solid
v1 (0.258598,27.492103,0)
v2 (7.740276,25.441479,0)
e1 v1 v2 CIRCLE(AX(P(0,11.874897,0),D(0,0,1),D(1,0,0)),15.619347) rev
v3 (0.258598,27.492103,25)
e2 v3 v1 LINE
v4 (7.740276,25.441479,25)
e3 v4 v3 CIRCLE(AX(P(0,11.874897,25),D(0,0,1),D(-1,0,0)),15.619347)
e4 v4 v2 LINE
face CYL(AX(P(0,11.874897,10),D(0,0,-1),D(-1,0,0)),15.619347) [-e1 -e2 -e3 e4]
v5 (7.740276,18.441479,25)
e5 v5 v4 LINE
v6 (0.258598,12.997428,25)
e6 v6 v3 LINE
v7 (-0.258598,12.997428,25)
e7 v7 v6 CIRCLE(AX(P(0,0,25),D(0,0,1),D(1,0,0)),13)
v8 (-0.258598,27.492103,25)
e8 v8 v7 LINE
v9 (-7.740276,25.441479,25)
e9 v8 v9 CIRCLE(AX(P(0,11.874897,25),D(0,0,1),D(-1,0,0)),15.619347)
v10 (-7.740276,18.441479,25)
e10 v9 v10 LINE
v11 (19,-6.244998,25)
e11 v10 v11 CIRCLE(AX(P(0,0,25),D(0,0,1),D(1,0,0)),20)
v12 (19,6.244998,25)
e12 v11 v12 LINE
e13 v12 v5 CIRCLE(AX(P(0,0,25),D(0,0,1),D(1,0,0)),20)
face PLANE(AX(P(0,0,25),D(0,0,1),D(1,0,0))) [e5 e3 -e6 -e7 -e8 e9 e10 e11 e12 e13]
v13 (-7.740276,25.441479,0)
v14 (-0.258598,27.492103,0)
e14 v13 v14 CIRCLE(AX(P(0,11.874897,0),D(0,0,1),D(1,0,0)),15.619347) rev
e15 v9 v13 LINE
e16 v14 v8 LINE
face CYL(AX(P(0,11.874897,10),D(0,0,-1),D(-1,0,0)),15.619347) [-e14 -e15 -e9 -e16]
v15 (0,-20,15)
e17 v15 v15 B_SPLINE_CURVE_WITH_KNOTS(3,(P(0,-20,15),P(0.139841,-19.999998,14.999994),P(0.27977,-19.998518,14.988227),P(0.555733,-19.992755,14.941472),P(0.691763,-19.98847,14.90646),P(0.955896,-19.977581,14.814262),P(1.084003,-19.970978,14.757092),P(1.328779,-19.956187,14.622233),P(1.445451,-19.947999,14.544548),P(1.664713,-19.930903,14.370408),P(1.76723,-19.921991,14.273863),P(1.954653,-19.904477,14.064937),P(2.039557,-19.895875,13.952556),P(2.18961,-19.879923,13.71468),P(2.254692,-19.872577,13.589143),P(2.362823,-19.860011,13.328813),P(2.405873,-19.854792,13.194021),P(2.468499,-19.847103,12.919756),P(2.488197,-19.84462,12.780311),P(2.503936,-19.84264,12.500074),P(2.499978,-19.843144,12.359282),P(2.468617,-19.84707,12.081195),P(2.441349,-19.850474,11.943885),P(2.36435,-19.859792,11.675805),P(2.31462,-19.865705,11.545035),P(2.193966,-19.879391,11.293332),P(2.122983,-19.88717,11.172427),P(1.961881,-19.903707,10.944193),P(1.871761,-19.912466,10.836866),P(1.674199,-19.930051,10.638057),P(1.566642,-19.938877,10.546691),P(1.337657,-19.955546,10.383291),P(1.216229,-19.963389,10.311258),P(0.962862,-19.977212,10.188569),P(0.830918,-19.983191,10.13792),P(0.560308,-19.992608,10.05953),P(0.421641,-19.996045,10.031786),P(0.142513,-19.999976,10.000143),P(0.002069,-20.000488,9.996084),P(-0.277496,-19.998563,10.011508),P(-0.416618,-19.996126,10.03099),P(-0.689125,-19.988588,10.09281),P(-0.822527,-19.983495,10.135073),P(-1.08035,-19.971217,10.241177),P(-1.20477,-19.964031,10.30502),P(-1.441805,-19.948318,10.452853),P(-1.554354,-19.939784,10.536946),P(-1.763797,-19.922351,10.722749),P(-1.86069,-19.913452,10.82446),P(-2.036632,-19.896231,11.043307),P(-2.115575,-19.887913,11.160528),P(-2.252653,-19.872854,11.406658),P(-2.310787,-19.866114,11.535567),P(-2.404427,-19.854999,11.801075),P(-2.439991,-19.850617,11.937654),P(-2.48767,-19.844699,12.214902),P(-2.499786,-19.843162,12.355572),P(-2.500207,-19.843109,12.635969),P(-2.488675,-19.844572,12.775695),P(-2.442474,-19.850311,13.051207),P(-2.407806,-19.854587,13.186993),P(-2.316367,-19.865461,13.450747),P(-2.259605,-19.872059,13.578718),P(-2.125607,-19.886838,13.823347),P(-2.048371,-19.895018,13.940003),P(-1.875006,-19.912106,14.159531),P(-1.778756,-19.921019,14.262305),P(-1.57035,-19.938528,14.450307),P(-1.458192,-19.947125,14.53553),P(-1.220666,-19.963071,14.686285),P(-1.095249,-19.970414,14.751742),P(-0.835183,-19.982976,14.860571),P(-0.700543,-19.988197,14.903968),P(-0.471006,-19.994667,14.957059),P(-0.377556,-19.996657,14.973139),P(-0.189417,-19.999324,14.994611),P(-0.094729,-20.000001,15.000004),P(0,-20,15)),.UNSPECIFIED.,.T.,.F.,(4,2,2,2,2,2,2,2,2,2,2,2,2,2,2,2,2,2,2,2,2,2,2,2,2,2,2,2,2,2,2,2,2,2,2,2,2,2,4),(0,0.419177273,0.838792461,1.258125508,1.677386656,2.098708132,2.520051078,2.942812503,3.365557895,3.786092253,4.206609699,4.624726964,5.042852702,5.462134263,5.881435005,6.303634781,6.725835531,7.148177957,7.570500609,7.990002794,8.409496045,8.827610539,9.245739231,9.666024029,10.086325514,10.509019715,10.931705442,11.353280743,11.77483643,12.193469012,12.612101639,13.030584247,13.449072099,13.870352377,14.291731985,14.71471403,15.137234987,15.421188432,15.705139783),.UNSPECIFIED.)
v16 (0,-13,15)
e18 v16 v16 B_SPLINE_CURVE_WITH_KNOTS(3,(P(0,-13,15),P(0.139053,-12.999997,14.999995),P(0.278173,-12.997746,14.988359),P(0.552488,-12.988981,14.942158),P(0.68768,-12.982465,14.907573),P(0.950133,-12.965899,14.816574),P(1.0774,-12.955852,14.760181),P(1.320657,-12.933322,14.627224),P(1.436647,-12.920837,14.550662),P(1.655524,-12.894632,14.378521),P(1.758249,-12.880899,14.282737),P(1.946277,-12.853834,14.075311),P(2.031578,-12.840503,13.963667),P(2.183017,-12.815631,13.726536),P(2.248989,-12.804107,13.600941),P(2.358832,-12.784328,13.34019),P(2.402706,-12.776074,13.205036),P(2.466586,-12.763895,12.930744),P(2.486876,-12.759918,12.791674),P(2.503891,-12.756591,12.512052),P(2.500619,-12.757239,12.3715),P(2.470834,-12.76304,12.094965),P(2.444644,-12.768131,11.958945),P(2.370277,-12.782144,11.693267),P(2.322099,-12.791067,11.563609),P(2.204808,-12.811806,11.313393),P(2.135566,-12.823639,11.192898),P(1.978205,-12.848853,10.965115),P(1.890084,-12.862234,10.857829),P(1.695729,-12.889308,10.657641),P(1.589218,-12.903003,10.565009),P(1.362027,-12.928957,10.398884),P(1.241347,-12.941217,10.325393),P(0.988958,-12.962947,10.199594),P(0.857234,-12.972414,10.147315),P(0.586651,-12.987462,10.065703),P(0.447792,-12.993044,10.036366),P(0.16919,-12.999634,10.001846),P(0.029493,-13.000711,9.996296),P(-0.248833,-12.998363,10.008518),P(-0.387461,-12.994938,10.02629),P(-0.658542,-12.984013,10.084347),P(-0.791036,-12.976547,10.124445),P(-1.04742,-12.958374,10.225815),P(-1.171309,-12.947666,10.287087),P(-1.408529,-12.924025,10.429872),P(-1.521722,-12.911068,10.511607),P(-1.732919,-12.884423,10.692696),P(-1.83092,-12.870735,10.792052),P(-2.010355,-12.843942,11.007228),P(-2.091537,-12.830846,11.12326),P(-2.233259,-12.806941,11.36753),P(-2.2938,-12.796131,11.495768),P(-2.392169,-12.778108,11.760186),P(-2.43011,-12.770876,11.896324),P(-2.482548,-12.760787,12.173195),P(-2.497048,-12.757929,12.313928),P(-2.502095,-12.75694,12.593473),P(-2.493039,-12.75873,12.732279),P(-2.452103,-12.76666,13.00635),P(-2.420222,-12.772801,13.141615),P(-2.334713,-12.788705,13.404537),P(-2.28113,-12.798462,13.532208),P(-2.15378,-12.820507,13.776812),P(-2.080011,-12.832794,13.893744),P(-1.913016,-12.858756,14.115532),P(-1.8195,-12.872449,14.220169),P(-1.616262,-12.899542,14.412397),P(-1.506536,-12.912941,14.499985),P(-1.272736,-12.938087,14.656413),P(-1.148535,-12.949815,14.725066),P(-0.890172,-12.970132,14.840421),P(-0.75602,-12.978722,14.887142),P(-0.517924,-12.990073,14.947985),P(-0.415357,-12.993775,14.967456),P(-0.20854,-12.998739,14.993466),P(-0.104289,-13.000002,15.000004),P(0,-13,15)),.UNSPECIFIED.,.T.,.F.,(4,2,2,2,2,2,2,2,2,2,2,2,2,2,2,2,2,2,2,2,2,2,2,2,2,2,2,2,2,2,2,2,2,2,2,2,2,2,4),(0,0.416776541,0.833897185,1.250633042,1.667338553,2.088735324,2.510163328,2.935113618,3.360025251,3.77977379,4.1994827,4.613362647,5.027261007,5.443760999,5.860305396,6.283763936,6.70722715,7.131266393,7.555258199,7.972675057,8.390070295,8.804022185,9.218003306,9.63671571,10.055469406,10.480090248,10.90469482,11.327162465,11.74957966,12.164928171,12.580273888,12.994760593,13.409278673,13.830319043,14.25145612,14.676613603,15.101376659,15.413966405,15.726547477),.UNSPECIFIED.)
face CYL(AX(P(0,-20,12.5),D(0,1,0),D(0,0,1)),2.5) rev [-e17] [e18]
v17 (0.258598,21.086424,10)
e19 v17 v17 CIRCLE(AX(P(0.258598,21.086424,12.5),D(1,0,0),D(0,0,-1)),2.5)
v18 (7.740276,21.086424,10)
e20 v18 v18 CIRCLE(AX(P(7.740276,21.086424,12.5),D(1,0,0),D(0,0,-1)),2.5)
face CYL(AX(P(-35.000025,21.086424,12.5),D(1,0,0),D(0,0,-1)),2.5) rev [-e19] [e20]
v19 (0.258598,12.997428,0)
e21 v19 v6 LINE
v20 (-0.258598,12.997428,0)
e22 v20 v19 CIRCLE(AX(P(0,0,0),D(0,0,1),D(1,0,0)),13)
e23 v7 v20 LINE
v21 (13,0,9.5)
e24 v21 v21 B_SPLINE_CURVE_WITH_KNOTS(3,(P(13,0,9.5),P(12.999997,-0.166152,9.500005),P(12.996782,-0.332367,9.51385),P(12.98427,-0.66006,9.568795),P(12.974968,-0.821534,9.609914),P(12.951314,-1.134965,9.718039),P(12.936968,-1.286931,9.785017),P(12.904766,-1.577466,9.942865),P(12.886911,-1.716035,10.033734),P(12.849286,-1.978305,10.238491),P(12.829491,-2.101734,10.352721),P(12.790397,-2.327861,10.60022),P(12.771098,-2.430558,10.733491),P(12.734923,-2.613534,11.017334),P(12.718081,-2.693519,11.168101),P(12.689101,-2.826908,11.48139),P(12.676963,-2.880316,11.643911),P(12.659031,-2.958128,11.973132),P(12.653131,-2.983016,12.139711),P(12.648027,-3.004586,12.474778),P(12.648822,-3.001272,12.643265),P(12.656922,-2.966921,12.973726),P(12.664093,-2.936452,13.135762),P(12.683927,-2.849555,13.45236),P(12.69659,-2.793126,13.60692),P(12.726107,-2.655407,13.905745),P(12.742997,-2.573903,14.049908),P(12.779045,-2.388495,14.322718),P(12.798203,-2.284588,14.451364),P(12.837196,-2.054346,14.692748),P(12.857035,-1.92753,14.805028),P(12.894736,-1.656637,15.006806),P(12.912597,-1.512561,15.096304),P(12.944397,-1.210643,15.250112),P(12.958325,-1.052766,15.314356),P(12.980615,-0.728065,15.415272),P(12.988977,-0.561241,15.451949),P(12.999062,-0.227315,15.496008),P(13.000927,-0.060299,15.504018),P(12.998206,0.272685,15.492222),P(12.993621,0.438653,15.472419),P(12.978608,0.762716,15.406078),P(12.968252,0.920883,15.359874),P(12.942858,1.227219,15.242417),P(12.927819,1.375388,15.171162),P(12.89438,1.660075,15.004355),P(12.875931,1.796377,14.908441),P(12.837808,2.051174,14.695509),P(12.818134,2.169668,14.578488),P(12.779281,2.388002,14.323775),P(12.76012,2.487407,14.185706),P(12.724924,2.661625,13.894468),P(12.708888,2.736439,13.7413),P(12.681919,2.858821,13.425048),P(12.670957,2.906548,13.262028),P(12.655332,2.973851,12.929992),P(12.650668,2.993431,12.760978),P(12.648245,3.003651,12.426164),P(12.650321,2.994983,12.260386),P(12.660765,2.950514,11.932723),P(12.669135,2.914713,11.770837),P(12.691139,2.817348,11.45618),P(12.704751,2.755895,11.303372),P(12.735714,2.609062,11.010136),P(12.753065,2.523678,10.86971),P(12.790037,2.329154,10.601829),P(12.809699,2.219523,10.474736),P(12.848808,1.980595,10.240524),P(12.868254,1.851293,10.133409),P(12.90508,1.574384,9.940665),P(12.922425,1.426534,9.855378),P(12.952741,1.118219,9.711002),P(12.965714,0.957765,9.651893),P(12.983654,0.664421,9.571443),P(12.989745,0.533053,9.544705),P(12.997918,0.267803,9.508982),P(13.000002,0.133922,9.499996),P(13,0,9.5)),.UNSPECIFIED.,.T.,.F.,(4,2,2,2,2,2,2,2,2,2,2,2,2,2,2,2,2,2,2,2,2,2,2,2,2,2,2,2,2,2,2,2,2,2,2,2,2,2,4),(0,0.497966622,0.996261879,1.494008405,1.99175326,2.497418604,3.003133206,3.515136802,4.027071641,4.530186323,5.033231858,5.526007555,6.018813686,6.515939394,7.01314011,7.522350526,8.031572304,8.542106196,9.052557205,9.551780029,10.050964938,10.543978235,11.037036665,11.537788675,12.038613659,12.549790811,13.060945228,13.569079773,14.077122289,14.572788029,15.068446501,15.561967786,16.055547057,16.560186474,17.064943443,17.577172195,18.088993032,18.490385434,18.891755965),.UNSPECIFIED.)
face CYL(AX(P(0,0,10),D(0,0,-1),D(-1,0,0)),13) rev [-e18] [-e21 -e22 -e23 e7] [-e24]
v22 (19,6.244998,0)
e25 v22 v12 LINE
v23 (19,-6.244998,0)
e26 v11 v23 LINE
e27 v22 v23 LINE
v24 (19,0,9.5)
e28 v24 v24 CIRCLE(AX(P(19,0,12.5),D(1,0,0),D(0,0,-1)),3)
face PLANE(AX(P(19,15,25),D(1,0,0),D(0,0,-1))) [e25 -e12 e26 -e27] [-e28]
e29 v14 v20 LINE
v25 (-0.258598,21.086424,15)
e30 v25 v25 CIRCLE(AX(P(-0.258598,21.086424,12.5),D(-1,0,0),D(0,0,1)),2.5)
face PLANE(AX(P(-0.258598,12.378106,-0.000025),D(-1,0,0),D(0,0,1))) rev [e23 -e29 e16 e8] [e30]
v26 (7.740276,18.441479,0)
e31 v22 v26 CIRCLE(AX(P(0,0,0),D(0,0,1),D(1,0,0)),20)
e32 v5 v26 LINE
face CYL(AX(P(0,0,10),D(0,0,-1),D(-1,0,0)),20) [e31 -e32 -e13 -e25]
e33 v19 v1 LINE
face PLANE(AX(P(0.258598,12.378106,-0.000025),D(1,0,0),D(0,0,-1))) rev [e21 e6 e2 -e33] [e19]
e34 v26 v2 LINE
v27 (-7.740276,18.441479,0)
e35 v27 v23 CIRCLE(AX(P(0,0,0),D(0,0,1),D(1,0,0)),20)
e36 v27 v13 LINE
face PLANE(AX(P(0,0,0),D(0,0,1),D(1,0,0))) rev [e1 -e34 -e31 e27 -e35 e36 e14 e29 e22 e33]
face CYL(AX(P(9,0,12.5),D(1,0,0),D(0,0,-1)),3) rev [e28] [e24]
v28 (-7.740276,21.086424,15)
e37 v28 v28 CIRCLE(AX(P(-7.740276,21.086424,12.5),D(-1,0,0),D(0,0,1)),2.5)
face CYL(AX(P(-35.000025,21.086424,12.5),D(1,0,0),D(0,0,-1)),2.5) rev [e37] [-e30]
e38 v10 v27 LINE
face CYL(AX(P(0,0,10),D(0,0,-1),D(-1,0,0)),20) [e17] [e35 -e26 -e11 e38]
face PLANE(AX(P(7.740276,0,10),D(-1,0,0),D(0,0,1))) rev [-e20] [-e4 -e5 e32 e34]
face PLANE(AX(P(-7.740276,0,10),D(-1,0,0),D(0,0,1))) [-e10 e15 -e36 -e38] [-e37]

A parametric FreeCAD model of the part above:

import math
import FreeCAD as App
import Part
import Sketcher

V = App.Vector
Q = App.Units.Quantity


def add_polygon(sketch, points):
    """Adds a closed chain of lines whose ends are joined by coincident constraints."""
    first, n = sketch.GeometryCount, len(points)
    for a, b in zip(points, points[1:] + points[:1]):
        sketch.addGeometry(Part.LineSegment(App.Vector(*a, 0), App.Vector(*b, 0)), False)
    for i in range(n):
        sketch.addConstraint(Sketcher.Constraint("Coincident", first + i, 2, first + (i + 1) % n, 1))

doc = App.newDocument("Part")
body = doc.addObject("PartDesign::Body", "Body")

# Sketch on XY plane
sketch1 = doc.addObject("Sketcher::SketchObject", "Sketch")
body.addObject(sketch1)
sketch1.AttachmentSupport = (doc.XY_Plane, [""])
sketch1.MapMode = "FlatFace"
sketch1.addGeometry(Part.LineSegment(V(-35, -7, 0), V(-7.7, -18.4, 0)), False)
sketch1.addGeometry(Part.ArcOfCircle(Part.Circle(V(0, 0, 0), V(0, 0, 1), 20), math.radians(-113), math.radians(-67)), False)
sketch1.addGeometry(Part.LineSegment(V(7.7, -18.4, 0), V(35, -7, 0)), False)
sketch1.addGeometry(Part.LineSegment(V(35, -7, 0), V(35, 7, 0)), False)
sketch1.addGeometry(Part.LineSegment(V(35, 7, 0), V(7.7, 18.4, 0)), False)
sketch1.addGeometry(Part.LineSegment(V(7.7, 18.4, 0), V(7.7, 25.4, 0)), False)
sketch1.addGeometry(Part.ArcOfCircle(Part.Circle(V(0, 11.9, 0), V(0, 0, 1), 15.6), math.radians(60), math.radians(120)), False)
sketch1.addGeometry(Part.LineSegment(V(-7.7, 25.4, 0), V(-7.7, 18.4, 0)), False)
sketch1.addGeometry(Part.LineSegment(V(-7.7, 18.4, 0), V(-35, 7, 0)), False)
sketch1.addGeometry(Part.LineSegment(V(-35, 7, 0), V(-35, -7, 0)), False)
sketch1.addGeometry(Part.Circle(V(-28, 0, 0), V(0, 0, 1), 3.5), False)
sketch1.addGeometry(Part.Circle(V(0, 0, 0), V(0, 0, 1), 13), False)
sketch1.addGeometry(Part.Circle(V(28, 0, 0), V(0, 0, 1), 3.5), False)
sketch1.addConstraint(Sketcher.Constraint("Tangent", 0, 2, 1, 1))
sketch1.addConstraint(Sketcher.Constraint("Tangent", 1, 2, 2, 1))
sketch1.addConstraint(Sketcher.Constraint("Coincident", 2, 2, 3, 1))
sketch1.addConstraint(Sketcher.Constraint("Coincident", 3, 2, 4, 1))
sketch1.addConstraint(Sketcher.Constraint("Coincident", 4, 2, 5, 1))
sketch1.addConstraint(Sketcher.Constraint("Coincident", 5, 2, 6, 1))
sketch1.addConstraint(Sketcher.Constraint("Coincident", 6, 2, 7, 1))
sketch1.addConstraint(Sketcher.Constraint("Coincident", 7, 2, 8, 1))
sketch1.addConstraint(Sketcher.Constraint("Coincident", 8, 2, 9, 1))
sketch1.addConstraint(Sketcher.Constraint("Coincident", 9, 2, 0, 1))
sketch1.addConstraint(Sketcher.Constraint("Vertical", 3))
sketch1.addConstraint(Sketcher.Constraint("Vertical", 5))
sketch1.addConstraint(Sketcher.Constraint("Vertical", 7))
sketch1.addConstraint(Sketcher.Constraint("Vertical", 9))
sketch1.addConstraint(Sketcher.Constraint("Coincident", 1, 3, -1, 1))
sketch1.addConstraint(Sketcher.Constraint("Coincident", 11, 3, -1, 1))
sketch1.addConstraint(Sketcher.Constraint("Equal", 10, 12))
sketch1.addConstraint(Sketcher.Constraint("Symmetric", 10, 3, 12, 3, -1, 1))
sketch1.addConstraint(Sketcher.Constraint("Symmetric", 0, 2, 4, 2, -1, 1))
sketch1.addConstraint(Sketcher.Constraint("Symmetric", 1, 2, 7, 2, -1, 1))
sketch1.addConstraint(Sketcher.Constraint("Symmetric", 2, 2, 8, 2, -1, 1))
sketch1.addConstraint(Sketcher.Constraint("Symmetric", 5, 2, 6, 2, -2))
sketch1.addConstraint(Sketcher.Constraint("PointOnObject", 10, 3, -1))
sketch1.addConstraint(Sketcher.Constraint("Parallel", 0, 4))
sketch1.addConstraint(Sketcher.Constraint("Diameter", 10, Q("7 mm")))
sketch1.addConstraint(Sketcher.Constraint("Diameter", 11, Q("26 mm")))
sketch1.addConstraint(Sketcher.Constraint("Radius", 1, Q("20 mm")))
sketch1.addConstraint(Sketcher.Constraint("DistanceY", 3, 1, 3, 2, Q("14 mm")))
sketch1.addConstraint(Sketcher.Constraint("DistanceY", 5, 1, 5, 2, Q("7 mm")))
sketch1.addConstraint(Sketcher.Constraint("DistanceX", 10, 3, -1, 1, Q("28 mm")))
sketch1.addConstraint(Sketcher.Constraint("DistanceX", -1, 1, 2, 2, Q("35 mm")))
sketch1.addConstraint(Sketcher.Constraint("Radius", 6, Q("15.619347 mm")))
pad1 = doc.addObject("PartDesign::Pad", "Pad")
body.addObject(pad1)
pad1.Profile = sketch1
pad1.Length = 10

# Sketch on XY plane
sketch2 = doc.addObject("Sketcher::SketchObject", "Sketch001")
body.addObject(sketch2)
sketch2.AttachmentSupport = (doc.XY_Plane, [""])
sketch2.MapMode = "FlatFace"
sketch2.AttachmentOffset = App.Placement(V(0, 0, 10), App.Rotation())
sketch2.addGeometry(Part.LineSegment(V(-8, 25, 0), V(-8, 18, 0)), False)
sketch2.addGeometry(Part.ArcOfCircle(Part.Circle(V(0, 0, 0), V(0, 0, 1), 20), math.radians(113), math.radians(427)), False)
sketch2.addGeometry(Part.LineSegment(V(8, 18, 0), V(8, 25, 0)), False)
sketch2.addGeometry(Part.ArcOfCircle(Part.Circle(V(0, 12, 0), V(0, 0, 1), 16), math.radians(60), math.radians(120)), False)
sketch2.addGeometry(Part.Circle(V(0, 0, 0), V(0, 0, 1), 13), False)
sketch2.addConstraint(Sketcher.Constraint("Coincident", 0, 2, 1, 1))
sketch2.addConstraint(Sketcher.Constraint("Coincident", 1, 2, 2, 1))
sketch2.addConstraint(Sketcher.Constraint("Coincident", 2, 2, 3, 1))
sketch2.addConstraint(Sketcher.Constraint("Coincident", 3, 2, 0, 1))
sketch2.addConstraint(Sketcher.Constraint("Vertical", 0))
sketch2.addConstraint(Sketcher.Constraint("Vertical", 2))
sketch2.addConstraint(Sketcher.Constraint("Coincident", 1, 3, -1, 1))
sketch2.addConstraint(Sketcher.Constraint("Coincident", 4, 3, -1, 1))
sketch2.addConstraint(Sketcher.Constraint("Symmetric", 2, 2, 3, 2, -2))
sketch2.addConstraint(Sketcher.Constraint("Diameter", 4, Q("26 mm")))
sketch2.addConstraint(Sketcher.Constraint("Radius", 1, Q("20 mm")))
sketch2.addConstraint(Sketcher.Constraint("DistanceY", 0, 2, 0, 1, Q("7 mm")))
sketch2.addConstraint(Sketcher.Constraint("Radius", 3, Q("15.619347 mm")))
sketch2.addConstraint(Sketcher.Constraint("DistanceY", -1, 1, 0, 2, Q("18.441479 mm")))
pad2 = doc.addObject("PartDesign::Pad", "Pad001")
body.addObject(pad2)
pad2.Profile = sketch2
pad2.Length = 15

# Sketch on XY plane
sketch3 = doc.addObject("Sketcher::SketchObject", "Sketch002")
body.addObject(sketch3)
sketch3.AttachmentSupport = (doc.XY_Plane, [""])
sketch3.MapMode = "FlatFace"
sketch3.AttachmentOffset = App.Placement(V(0, 0, 25), App.Rotation())
add_polygon(sketch3, [(-0.3, 31.1), (-0.3, 12.4), (0.3, 12.4), (0.3, 31.1)])  # lines 0-3
sketch3.addConstraint(Sketcher.Constraint("Vertical", 0))
sketch3.addConstraint(Sketcher.Constraint("Horizontal", 1))
sketch3.addConstraint(Sketcher.Constraint("Vertical", 2))
sketch3.addConstraint(Sketcher.Constraint("Horizontal", 3))
sketch3.addConstraint(Sketcher.Constraint("DistanceY", -1, 1, 2, 2, Q("31.104299 mm")))
sketch3.addConstraint(Sketcher.Constraint("DistanceX", 1, 1, 1, 2, Q("0.517195 mm")))
sketch3.addConstraint(Sketcher.Constraint("DistanceY", 0, 2, 0, 1, Q("18.726193 mm")))
sketch3.addConstraint(Sketcher.Constraint("DistanceX", 0, 2, -1, 1, Q("0.258598 mm")))
pocket1 = doc.addObject("PartDesign::Pocket", "Pocket")
body.addObject(pocket1)
pocket1.Profile = sketch3
pocket1.Type = "ThroughAll"

# Sketch on YZ plane
sketch4 = doc.addObject("Sketcher::SketchObject", "Sketch003")
body.addObject(sketch4)
sketch4.AttachmentSupport = (doc.YZ_Plane, [""])
sketch4.MapMode = "FlatFace"
sketch4.AttachmentOffset = App.Placement(V(0, 0, 7.740276), App.Rotation())
sketch4.addGeometry(Part.Circle(V(21.1, 12.5, 0), V(0, 0, 1), 2.5), False)
sketch4.addConstraint(Sketcher.Constraint("Diameter", 0, Q("5 mm")))
sketch4.addConstraint(Sketcher.Constraint("DistanceY", -1, 1, 0, 3, Q("12.5 mm")))
sketch4.addConstraint(Sketcher.Constraint("DistanceX", -1, 1, 0, 3, Q("21.086424 mm")))
pocket2 = doc.addObject("PartDesign::Pocket", "Pocket001")
body.addObject(pocket2)
pocket2.Profile = sketch4
pocket2.Type = "ThroughAll"

# Sketch on XY plane
sketch5 = doc.addObject("Sketcher::SketchObject", "Sketch004")
body.addObject(sketch5)
sketch5.AttachmentSupport = (doc.XY_Plane, [""])
sketch5.MapMode = "FlatFace"
sketch5.AttachmentOffset = App.Placement(V(0, 0, 10), App.Rotation())
sketch5.addGeometry(Part.LineSegment(V(-8, 18, 0), V(-35, 7, 0)), False)
sketch5.addGeometry(Part.LineSegment(V(-35, 7, 0), V(-35, -7, 0)), False)
sketch5.addGeometry(Part.LineSegment(V(-35, -7, 0), V(-8, -18, 0)), False)
sketch5.addGeometry(Part.ArcOfCircle(Part.Circle(V(0, 0, 0), V(0, 0, 1), 20), math.radians(113), math.radians(247)), False)
sketch5.addGeometry(Part.LineSegment(V(35, 7, 0), V(8, 18, 0)), False)
sketch5.addGeometry(Part.ArcOfCircle(Part.Circle(V(0, 0, 0), V(0, 0, 1), 20), math.radians(-67), math.radians(67)), False)
sketch5.addGeometry(Part.LineSegment(V(8, -18, 0), V(35, -7, 0)), False)
sketch5.addGeometry(Part.LineSegment(V(35, -7, 0), V(35, 7, 0)), False)
sketch5.addConstraint(Sketcher.Constraint("Coincident", 0, 2, 1, 1))
sketch5.addConstraint(Sketcher.Constraint("Coincident", 1, 2, 2, 1))
sketch5.addConstraint(Sketcher.Constraint("Tangent", 2, 2, 3, 2))
sketch5.addConstraint(Sketcher.Constraint("Tangent", 3, 1, 0, 1))
sketch5.addConstraint(Sketcher.Constraint("Tangent", 4, 2, 5, 2))
sketch5.addConstraint(Sketcher.Constraint("Tangent", 5, 1, 6, 1))
sketch5.addConstraint(Sketcher.Constraint("Coincident", 6, 2, 7, 1))
sketch5.addConstraint(Sketcher.Constraint("Coincident", 7, 2, 4, 1))
sketch5.addConstraint(Sketcher.Constraint("Vertical", 1))
sketch5.addConstraint(Sketcher.Constraint("Vertical", 7))
sketch5.addConstraint(Sketcher.Constraint("Coincident", 3, 3, -1, 1))
sketch5.addConstraint(Sketcher.Constraint("Coincident", 5, 3, -1, 1))
sketch5.addConstraint(Sketcher.Constraint("Equal", 3, 5))
sketch5.addConstraint(Sketcher.Constraint("Symmetric", 0, 2, 6, 2, -1, 1))
sketch5.addConstraint(Sketcher.Constraint("Parallel", 2, 4))
sketch5.addConstraint(Sketcher.Constraint("Horizontal", 3, 1, 4, 2))
sketch5.addConstraint(Sketcher.Constraint("Radius", 3, Q("20 mm")))
sketch5.addConstraint(Sketcher.Constraint("DistanceY", 1, 2, 1, 1, Q("14 mm")))
sketch5.addConstraint(Sketcher.Constraint("DistanceX", 0, 2, -1, 1, Q("35 mm")))
pocket3 = doc.addObject("PartDesign::Pocket", "Pocket002")
body.addObject(pocket3)
pocket3.Profile = sketch5
pocket3.Type = "ThroughAll"

# Sketch on XZ plane
sketch6 = doc.addObject("Sketcher::SketchObject", "Sketch005")
body.addObject(sketch6)
sketch6.AttachmentSupport = (doc.XZ_Plane, [""])
sketch6.MapMode = "FlatFace"
sketch6.addGeometry(Part.Circle(V(0, 12.5, 0), V(0, 0, 1), 2.5), False)
sketch6.addConstraint(Sketcher.Constraint("PointOnObject", 0, 3, -2))
sketch6.addConstraint(Sketcher.Constraint("Diameter", 0, Q("5 mm")))
sketch6.addConstraint(Sketcher.Constraint("DistanceY", -1, 1, 0, 3, Q("12.5 mm")))
pocket4 = doc.addObject("PartDesign::Pocket", "Pocket003")
body.addObject(pocket4)
pocket4.Profile = sketch6
pocket4.Type = "ThroughAll"
pocket4.Reversed = True

# Sketch on XY plane
sketch7 = doc.addObject("Sketcher::SketchObject", "Sketch006")
body.addObject(sketch7)
sketch7.AttachmentSupport = (doc.XY_Plane, [""])
sketch7.MapMode = "FlatFace"
add_polygon(sketch7, [(19, 15), (19, -15), (24, -15), (24, 15)])  # lines 0-3
sketch7.addConstraint(Sketcher.Constraint("Vertical", 0))
sketch7.addConstraint(Sketcher.Constraint("Horizontal", 1))
sketch7.addConstraint(Sketcher.Constraint("Vertical", 2))
sketch7.addConstraint(Sketcher.Constraint("Horizontal", 3))
sketch7.addConstraint(Sketcher.Constraint("DistanceX", 1, 1, 1, 2, Q("5 mm")))
sketch7.addConstraint(Sketcher.Constraint("DistanceY", 0, 2, 0, 1, Q("30 mm")))
sketch7.addConstraint(Sketcher.Constraint("DistanceX", -1, 1, 0, 2, Q("19 mm")))
sketch7.addConstraint(Sketcher.Constraint("DistanceY", 0, 2, -1, 1, Q("15 mm")))
pocket5 = doc.addObject("PartDesign::Pocket", "Pocket004")
body.addObject(pocket5)
pocket5.Profile = sketch7
pocket5.Type = "ThroughAll"
pocket5.Reversed = True

# Sketch on YZ plane
sketch8 = doc.addObject("Sketcher::SketchObject", "Sketch007")
body.addObject(sketch8)
sketch8.AttachmentSupport = (doc.YZ_Plane, [""])
sketch8.MapMode = "FlatFace"
sketch8.AttachmentOffset = App.Placement(V(0, 0, 19), App.Rotation())
sketch8.addGeometry(Part.Circle(V(0, 12.5, 0), V(0, 0, 1), 3), False)
sketch8.addConstraint(Sketcher.Constraint("PointOnObject", 0, 3, -2))
sketch8.addConstraint(Sketcher.Constraint("Diameter", 0, Q("6 mm")))
sketch8.addConstraint(Sketcher.Constraint("DistanceY", -1, 1, 0, 3, Q("12.5 mm")))
pocket6 = doc.addObject("PartDesign::Pocket", "Pocket005")
body.addObject(pocket6)
pocket6.Profile = sketch8
pocket6.Length = 10

doc.recompute()
